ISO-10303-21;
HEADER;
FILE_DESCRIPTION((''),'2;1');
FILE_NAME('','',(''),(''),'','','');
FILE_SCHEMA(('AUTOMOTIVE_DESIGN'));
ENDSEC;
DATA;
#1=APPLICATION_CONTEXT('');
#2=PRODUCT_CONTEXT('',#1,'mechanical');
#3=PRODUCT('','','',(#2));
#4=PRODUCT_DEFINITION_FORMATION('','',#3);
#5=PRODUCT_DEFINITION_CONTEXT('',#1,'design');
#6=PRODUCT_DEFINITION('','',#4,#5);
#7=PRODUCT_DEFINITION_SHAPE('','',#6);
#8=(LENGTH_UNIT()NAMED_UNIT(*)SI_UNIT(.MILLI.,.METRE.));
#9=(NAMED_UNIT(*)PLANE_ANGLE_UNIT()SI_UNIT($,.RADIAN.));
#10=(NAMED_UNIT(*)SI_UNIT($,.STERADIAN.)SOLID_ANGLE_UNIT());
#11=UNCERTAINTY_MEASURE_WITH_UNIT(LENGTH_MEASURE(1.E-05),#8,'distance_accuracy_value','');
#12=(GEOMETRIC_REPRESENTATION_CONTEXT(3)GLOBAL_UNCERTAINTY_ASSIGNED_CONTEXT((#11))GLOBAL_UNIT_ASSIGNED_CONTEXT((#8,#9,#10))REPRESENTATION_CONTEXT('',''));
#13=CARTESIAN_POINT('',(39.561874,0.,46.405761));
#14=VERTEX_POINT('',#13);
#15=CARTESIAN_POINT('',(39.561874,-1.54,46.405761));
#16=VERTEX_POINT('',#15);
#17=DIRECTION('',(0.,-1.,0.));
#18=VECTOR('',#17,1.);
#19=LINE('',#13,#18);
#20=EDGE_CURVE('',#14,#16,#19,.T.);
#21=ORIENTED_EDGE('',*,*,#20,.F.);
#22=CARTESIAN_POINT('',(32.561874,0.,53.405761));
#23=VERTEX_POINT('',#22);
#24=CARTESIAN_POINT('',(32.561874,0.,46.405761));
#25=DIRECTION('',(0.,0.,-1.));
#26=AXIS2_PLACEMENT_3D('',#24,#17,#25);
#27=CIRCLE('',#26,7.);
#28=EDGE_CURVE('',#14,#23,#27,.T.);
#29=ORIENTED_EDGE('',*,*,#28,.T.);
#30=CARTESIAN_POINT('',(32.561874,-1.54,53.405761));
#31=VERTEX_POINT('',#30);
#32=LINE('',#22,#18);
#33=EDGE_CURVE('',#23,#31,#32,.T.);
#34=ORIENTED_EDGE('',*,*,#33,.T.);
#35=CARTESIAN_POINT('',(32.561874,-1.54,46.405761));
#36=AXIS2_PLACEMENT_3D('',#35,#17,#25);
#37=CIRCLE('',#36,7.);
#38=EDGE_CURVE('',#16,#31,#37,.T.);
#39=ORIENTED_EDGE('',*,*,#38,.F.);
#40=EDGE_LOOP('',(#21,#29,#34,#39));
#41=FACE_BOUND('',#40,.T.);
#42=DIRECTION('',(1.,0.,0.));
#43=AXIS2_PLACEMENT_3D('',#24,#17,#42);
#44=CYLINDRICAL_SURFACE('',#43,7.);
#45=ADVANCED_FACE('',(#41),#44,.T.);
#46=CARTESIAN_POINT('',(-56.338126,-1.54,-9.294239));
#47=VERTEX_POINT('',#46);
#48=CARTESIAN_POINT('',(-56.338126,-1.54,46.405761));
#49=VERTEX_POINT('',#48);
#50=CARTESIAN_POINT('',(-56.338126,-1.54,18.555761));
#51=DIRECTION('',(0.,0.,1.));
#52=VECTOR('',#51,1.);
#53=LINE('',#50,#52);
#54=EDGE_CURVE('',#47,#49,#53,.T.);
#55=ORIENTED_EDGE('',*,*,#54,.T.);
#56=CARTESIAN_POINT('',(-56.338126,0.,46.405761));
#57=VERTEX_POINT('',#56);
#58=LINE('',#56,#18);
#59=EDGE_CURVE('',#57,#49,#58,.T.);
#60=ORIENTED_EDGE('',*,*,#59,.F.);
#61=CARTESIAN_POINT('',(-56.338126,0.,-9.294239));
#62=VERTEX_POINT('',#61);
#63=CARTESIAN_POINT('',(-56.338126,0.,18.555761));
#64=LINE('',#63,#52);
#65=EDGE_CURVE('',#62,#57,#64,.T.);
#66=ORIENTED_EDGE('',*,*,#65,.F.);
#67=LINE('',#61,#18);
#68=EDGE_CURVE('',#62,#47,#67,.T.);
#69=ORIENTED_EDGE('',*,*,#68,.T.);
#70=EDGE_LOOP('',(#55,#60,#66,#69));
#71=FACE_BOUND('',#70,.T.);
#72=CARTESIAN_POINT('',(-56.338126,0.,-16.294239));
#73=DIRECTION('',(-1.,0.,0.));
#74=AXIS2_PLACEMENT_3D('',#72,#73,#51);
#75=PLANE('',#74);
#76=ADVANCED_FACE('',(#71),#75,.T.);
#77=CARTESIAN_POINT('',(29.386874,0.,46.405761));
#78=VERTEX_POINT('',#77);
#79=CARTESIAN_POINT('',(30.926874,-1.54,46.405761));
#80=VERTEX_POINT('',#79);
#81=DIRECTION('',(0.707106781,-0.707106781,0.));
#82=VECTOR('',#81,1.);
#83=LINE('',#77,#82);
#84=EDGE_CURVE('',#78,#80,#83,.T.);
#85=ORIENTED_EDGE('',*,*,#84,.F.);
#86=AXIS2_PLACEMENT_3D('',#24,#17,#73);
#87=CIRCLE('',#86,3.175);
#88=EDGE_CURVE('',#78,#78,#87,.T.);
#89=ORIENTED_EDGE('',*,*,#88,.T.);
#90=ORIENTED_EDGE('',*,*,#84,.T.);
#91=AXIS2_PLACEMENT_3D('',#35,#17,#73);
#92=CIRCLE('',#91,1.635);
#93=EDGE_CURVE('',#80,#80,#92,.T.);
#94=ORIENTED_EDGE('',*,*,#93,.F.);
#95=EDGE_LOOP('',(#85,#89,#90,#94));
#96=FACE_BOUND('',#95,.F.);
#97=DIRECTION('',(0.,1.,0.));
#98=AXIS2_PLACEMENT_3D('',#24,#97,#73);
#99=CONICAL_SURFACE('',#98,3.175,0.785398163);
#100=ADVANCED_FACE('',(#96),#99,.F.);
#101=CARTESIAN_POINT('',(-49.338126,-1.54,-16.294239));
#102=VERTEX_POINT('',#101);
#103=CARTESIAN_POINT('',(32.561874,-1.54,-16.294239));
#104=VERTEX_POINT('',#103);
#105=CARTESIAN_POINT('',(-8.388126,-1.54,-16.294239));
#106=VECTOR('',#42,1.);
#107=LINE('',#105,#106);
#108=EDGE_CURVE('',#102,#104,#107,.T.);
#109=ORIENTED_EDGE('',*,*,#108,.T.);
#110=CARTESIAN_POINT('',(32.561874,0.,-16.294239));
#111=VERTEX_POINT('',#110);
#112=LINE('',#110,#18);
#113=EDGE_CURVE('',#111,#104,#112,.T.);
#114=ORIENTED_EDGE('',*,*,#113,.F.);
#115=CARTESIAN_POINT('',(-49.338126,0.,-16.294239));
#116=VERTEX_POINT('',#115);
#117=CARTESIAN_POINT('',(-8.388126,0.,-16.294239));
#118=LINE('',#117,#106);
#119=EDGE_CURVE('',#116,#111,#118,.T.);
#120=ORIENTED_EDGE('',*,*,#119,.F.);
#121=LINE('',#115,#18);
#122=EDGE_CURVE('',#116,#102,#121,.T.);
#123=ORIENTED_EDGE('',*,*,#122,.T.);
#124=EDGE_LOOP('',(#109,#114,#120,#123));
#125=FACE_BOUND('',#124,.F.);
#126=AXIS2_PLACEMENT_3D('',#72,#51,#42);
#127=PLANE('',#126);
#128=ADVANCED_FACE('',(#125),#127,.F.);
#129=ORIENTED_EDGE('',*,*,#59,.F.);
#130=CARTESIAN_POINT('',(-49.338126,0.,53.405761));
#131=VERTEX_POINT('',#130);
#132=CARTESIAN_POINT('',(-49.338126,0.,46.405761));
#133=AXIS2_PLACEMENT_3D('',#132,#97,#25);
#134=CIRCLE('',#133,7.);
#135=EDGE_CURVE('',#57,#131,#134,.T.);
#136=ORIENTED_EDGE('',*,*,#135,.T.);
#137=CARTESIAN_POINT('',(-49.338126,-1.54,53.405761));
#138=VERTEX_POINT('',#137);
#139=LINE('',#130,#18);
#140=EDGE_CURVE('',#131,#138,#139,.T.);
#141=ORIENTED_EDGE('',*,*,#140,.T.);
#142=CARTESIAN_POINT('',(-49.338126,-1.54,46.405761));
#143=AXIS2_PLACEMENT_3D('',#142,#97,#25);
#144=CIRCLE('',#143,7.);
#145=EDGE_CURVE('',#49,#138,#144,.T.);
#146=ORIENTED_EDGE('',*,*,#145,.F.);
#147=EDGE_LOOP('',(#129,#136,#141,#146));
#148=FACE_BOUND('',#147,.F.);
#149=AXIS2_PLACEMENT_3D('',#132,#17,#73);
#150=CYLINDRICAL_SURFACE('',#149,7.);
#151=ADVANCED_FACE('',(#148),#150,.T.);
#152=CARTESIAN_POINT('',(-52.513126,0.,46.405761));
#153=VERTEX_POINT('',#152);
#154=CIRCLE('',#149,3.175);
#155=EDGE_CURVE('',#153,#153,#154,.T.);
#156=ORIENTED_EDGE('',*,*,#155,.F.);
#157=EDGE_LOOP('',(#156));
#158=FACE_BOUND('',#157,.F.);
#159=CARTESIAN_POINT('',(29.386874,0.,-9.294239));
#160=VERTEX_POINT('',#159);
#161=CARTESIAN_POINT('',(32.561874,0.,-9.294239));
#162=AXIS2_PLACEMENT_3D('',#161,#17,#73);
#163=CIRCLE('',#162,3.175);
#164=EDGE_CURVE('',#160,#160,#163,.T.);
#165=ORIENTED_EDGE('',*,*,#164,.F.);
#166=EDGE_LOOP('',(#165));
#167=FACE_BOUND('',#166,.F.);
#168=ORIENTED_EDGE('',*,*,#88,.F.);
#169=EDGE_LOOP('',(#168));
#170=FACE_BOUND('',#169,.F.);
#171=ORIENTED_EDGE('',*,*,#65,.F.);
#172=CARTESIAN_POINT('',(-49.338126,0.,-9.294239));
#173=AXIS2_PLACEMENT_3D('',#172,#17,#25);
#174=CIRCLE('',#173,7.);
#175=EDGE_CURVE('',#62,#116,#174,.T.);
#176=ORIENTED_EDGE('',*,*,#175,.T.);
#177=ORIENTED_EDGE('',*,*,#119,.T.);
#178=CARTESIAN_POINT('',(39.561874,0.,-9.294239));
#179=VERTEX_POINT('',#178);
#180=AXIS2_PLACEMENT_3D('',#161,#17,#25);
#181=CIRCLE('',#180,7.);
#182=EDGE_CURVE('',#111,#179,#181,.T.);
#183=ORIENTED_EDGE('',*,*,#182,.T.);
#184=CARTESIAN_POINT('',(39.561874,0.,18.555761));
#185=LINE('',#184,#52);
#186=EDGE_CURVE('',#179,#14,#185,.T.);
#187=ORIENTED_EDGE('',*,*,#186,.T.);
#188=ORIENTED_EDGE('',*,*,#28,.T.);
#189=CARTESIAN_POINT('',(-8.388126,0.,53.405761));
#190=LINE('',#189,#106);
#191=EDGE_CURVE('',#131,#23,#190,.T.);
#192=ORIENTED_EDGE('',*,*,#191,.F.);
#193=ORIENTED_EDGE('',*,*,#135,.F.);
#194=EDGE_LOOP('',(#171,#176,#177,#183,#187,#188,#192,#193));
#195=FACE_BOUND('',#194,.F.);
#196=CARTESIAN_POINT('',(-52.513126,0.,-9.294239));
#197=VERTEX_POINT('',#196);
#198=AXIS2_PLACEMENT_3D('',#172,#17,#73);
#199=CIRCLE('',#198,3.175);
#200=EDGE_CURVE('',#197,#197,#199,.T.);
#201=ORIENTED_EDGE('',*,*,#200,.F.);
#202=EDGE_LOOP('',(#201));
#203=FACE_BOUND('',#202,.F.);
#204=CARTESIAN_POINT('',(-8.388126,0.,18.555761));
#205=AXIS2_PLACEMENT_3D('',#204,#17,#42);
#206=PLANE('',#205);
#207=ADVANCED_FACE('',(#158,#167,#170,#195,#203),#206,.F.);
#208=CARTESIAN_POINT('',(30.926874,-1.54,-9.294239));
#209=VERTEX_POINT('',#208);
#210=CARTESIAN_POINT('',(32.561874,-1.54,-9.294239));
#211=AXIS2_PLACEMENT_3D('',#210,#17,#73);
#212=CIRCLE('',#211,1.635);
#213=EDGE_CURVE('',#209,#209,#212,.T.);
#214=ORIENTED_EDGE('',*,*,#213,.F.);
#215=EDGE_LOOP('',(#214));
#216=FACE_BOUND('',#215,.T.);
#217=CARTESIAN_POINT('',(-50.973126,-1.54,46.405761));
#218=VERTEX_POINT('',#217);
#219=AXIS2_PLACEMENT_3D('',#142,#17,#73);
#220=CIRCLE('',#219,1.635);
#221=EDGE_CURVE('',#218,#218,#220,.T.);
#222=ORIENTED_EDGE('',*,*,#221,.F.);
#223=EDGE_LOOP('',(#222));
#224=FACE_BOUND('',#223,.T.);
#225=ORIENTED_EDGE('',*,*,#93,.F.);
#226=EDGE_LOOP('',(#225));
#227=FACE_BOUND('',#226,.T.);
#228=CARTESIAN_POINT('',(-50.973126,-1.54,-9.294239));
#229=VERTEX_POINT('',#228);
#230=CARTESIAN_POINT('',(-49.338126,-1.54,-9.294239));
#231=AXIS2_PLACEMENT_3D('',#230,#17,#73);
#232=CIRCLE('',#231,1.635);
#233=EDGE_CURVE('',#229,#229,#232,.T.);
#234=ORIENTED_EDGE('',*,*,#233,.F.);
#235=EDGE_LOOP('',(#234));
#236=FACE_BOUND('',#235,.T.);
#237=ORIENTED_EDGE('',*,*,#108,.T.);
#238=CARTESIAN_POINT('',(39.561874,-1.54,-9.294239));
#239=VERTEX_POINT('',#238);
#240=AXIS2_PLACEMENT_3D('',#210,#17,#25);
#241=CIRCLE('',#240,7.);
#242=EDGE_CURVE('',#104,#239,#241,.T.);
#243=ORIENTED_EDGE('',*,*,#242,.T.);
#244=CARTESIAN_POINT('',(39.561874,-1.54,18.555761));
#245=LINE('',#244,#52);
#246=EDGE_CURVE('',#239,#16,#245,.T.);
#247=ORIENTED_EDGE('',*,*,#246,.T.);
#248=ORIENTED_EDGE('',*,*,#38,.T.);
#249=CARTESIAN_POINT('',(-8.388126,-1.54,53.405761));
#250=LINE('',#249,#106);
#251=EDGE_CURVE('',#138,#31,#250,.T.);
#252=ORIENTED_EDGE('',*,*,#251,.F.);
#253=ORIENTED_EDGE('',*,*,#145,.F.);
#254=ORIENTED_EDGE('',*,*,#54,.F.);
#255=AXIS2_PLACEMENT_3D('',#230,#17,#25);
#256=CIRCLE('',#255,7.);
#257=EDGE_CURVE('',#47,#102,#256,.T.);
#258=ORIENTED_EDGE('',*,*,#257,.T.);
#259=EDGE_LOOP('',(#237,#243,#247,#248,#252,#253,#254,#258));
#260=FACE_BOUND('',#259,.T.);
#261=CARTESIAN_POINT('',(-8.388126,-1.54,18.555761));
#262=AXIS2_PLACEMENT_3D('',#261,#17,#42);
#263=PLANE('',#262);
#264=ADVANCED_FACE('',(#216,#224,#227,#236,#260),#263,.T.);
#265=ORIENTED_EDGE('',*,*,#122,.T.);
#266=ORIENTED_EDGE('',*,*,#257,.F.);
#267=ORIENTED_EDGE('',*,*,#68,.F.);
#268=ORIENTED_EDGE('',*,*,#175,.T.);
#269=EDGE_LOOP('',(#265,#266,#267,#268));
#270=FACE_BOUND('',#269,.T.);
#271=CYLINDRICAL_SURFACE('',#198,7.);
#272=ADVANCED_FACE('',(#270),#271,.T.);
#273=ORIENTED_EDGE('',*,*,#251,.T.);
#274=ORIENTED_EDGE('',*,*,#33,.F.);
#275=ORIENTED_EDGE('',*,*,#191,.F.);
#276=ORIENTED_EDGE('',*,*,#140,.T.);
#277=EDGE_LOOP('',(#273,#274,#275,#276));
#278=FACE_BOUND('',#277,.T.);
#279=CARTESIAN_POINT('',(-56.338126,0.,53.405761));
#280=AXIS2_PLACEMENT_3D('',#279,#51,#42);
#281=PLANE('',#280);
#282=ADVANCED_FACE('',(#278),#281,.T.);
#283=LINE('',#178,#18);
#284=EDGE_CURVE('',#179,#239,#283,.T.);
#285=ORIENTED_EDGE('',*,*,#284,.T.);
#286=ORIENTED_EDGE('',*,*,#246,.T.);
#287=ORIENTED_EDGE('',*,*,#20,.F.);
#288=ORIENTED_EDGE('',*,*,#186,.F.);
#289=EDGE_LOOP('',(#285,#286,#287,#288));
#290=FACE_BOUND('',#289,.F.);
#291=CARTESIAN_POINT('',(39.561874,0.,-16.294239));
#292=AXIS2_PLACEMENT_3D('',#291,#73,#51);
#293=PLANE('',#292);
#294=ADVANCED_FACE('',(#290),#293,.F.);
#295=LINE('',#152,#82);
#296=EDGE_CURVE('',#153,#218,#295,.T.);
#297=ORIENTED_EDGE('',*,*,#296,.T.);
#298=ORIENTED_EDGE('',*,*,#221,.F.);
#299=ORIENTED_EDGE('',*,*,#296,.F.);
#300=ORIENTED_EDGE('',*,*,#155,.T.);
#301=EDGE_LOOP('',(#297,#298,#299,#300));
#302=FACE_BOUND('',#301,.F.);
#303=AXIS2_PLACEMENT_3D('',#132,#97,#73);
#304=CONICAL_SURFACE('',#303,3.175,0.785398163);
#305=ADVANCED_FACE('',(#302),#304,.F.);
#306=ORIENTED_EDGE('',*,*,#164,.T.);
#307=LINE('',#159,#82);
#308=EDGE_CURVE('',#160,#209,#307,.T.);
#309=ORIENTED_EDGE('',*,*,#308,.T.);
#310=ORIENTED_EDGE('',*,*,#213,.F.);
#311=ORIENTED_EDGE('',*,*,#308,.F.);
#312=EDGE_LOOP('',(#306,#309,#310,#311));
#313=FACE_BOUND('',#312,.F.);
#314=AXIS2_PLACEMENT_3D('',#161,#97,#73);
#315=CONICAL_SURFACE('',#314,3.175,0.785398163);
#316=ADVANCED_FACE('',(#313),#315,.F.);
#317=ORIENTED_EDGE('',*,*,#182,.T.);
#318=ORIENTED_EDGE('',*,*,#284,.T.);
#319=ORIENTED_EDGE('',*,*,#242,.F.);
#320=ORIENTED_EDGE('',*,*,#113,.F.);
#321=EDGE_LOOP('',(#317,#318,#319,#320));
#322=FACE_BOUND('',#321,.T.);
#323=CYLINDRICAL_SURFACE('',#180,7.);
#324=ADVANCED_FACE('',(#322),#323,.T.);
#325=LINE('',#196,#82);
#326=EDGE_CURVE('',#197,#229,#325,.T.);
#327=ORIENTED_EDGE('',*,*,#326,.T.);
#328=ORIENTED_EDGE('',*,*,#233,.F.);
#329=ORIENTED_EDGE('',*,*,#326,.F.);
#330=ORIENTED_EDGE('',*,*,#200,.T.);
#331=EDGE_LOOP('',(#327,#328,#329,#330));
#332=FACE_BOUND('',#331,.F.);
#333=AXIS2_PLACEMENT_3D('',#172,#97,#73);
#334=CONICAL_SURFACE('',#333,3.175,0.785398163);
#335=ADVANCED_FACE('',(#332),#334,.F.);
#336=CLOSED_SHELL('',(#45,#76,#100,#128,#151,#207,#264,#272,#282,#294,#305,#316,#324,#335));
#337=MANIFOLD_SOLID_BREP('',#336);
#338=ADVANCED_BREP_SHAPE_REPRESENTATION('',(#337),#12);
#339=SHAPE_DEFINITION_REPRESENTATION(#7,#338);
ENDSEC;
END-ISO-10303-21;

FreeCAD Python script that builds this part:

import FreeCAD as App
import Part
import Sketcher

V = App.Vector


def edges_at(feature, points):
    """Names of the edges that pass closest to the given points."""
    edges = feature.Shape.Edges
    near = lambda p: min(range(len(edges)), key=lambda i: edges[i].distToShape(Part.Vertex(*p))[0])
    return sorted({f"Edge{near(p) + 1}" for p in points})

doc = App.newDocument("Part")
body = doc.addObject("PartDesign::Body", "Body")

sketch1 = doc.addObject("Sketcher::SketchObject", "Sketch")
body.addObject(sketch1)
sketch1.AttachmentSupport = (doc.XZ_Plane, [""])
sketch1.MapMode = "FlatFace"
sketch1.addGeometry(Part.LineSegment(V(-56.338126, 53.405761, 0), V(-56.338126, -16.294239, 0)), False)
sketch1.addGeometry(Part.LineSegment(V(-56.338126, -16.294239, 0), V(39.561874, -16.294239, 0)), False)
sketch1.addGeometry(Part.LineSegment(V(39.561874, -16.294239, 0), V(39.561874, 53.405761, 0)), False)
sketch1.addGeometry(Part.LineSegment(V(39.561874, 53.405761, 0), V(-56.338126, 53.405761, 0)), False)
sketch1.addConstraint(Sketcher.Constraint("Coincident", 0, 2, 1, 1))
sketch1.addConstraint(Sketcher.Constraint("Coincident", 1, 2, 2, 1))
sketch1.addConstraint(Sketcher.Constraint("Coincident", 2, 2, 3, 1))
sketch1.addConstraint(Sketcher.Constraint("Coincident", 3, 2, 0, 1))
sketch1.addConstraint(Sketcher.Constraint("Vertical", 0))
sketch1.addConstraint(Sketcher.Constraint("Horizontal", 1))
sketch1.addConstraint(Sketcher.Constraint("Vertical", 2))
sketch1.addConstraint(Sketcher.Constraint("Horizontal", 3))
sketch1.addConstraint(Sketcher.Constraint("DistanceX", 1, 1, 1, 2, 95.9))
sketch1.addConstraint(Sketcher.Constraint("DistanceY", 0, 2, 0, 1, 69.7))
sketch1.addConstraint(Sketcher.Constraint("DistanceY", 0, 2, -1, 1, 16.294239))
sketch1.addConstraint(Sketcher.Constraint("DistanceX", 0, 2, -1, 1, 56.338126))
pad1 = doc.addObject("PartDesign::Pad", "Pad")
body.addObject(pad1)
pad1.Profile = sketch1
pad1.Length = 1.54
doc.recompute()

fillet = doc.addObject("PartDesign::Fillet", "Fillet")
body.addObject(fillet)
fillet.Base = (pad1, edges_at(pad1, [
    (-56.338, -0.77, -16.294),
    (39.562, -0.77, -16.294),
    (39.562, -0.77, 53.406),
    (-56.338, -0.77, 53.406),
]))
fillet.Radius = 7

sketch2 = doc.addObject("Sketcher::SketchObject", "Sketch001")
body.addObject(sketch2)
sketch2.AttachmentSupport = (doc.XZ_Plane, [""])
sketch2.MapMode = "FlatFace"
sketch2.addGeometry(Part.Circle(V(-49.338126, 46.405761, 0), V(0, 0, 1), 1.4224), False)
sketch2.addGeometry(Part.Circle(V(32.561874, 46.405761, 0), V(0, 0, 1), 1.4224), False)
sketch2.addGeometry(Part.Circle(V(32.561874, -9.294239, 0), V(0, 0, 1), 1.4224), False)
sketch2.addGeometry(Part.Circle(V(-49.338126, -9.294239, 0), V(0, 0, 1), 1.4224), False)
sketch2.addConstraint(Sketcher.Constraint("Equal", 0, 1))
sketch2.addConstraint(Sketcher.Constraint("Equal", 1, 2))
sketch2.addConstraint(Sketcher.Constraint("Equal", 2, 3))
sketch2.addConstraint(Sketcher.Constraint("Horizontal", 0, 3, 1, 3))
sketch2.addConstraint(Sketcher.Constraint("Horizontal", 2, 3, 3, 3))
sketch2.addConstraint(Sketcher.Constraint("Vertical", 1, 3, 2, 3))
sketch2.addConstraint(Sketcher.Constraint("Vertical", 0, 3, 3, 3))
sketch2.addConstraint(Sketcher.Constraint("Diameter", 0, 2.8448))
sketch2.addConstraint(Sketcher.Constraint("DistanceX", 0, 3, 1, 3, 81.9))
sketch2.addConstraint(Sketcher.Constraint("DistanceY", 2, 3, 1, 3, 55.7))
sketch2.addConstraint(Sketcher.Constraint("DistanceY", -1, 1, 0, 3, 46.405761))
sketch2.addConstraint(Sketcher.Constraint("DistanceX", 0, 3, -1, 1, 49.338126))
doc.recompute()
hole = doc.addObject("PartDesign::Hole", "Hole")
body.addObject(hole)
hole.Profile = sketch2
hole.ThreadType = "None"
hole.Diameter = 2.8448
hole.DepthType = "ThroughAll"
hole.HoleCutType = "Countersink"
hole.HoleCutDiameter = 6.35
hole.HoleCutCountersinkAngle = 90
hole.Reversed = True

doc.recompute()
